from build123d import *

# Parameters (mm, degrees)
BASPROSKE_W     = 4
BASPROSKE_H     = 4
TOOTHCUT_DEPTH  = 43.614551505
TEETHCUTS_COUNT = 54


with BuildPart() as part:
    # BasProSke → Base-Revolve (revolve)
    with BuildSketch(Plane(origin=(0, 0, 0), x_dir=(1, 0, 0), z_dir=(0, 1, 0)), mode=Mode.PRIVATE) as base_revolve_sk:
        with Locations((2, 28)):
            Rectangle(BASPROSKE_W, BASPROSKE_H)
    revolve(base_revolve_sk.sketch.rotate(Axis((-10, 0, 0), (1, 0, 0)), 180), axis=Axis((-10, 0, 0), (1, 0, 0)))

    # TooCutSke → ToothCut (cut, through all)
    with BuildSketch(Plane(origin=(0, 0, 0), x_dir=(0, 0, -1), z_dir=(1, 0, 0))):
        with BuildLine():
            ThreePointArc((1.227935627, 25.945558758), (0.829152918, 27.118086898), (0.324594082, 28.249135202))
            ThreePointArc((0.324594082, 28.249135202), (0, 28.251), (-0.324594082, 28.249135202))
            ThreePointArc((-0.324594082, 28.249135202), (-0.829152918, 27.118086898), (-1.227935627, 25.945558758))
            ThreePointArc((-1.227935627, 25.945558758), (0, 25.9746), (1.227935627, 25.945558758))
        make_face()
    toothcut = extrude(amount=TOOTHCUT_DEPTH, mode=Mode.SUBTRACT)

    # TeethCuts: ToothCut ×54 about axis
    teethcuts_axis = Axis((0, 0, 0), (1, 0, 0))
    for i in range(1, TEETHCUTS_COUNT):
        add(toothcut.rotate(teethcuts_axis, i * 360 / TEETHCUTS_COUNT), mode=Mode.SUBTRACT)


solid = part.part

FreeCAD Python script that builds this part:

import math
import FreeCAD as App
import Part
import Sketcher
from FreeCAD import Vector

doc = App.newDocument("Part")
body = doc.addObject("PartDesign::Body", "Body")

sketch1 = body.newObject("Sketcher::SketchObject", "Sketch")
sketch1.AttachmentSupport = (doc.getObject("XZ_Plane"), [""])
sketch1.MapMode = "FlatFace"
sketch1.addGeometry([
    Part.LineSegment(Vector(0, -30, 0), Vector(0, -26, 0)),
    Part.LineSegment(Vector(0, -26, 0), Vector(4, -26, 0)),
    Part.LineSegment(Vector(4, -26, 0), Vector(4, -30, 0)),
    Part.LineSegment(Vector(4, -30, 0), Vector(0, -30, 0)),
], False)
sketch1.addConstraint([
    Sketcher.Constraint("Coincident", 0, 2, 1, 1),
    Sketcher.Constraint("Coincident", 1, 2, 2, 1),
    Sketcher.Constraint("Coincident", 2, 2, 3, 1),
    Sketcher.Constraint("Coincident", 3, 2, 0, 1),
    Sketcher.Constraint("Vertical", 0),
    Sketcher.Constraint("Horizontal", 1),
    Sketcher.Constraint("Vertical", 2),
    Sketcher.Constraint("Horizontal", 3),
    Sketcher.Constraint("PointOnObject", 0, 2, -2),
    Sketcher.Constraint("Equal", 3, 0),
    Sketcher.Constraint("DistanceX", 1, 1, 1, 2, 4.0),
    Sketcher.Constraint("DistanceY", 0, 2, -1, 1, 26.0),
])
revolution = body.newObject("PartDesign::Revolution", "Revolution")
revolution.Profile = sketch1
revolution.ReferenceAxis = (sketch1, ["H_Axis"])
revolution.Angle = 360

sketch2 = body.newObject("Sketcher::SketchObject", "Sketch001")
sketch2.AttachmentSupport = (doc.getObject("YZ_Plane"), [""])
sketch2.MapMode = "FlatFace"
sketch2.addGeometry([
    Part.ArcOfCircle(Part.Circle(Vector(22.2, 11.7, 0), Vector(0, 0, 1), 13.5), math.radians(-73.85), math.radians(-63.33)),
    Part.ArcOfCircle(Part.Circle(Vector(0, 0, 0), Vector(0, 0, 1), 28.3), math.radians(-0.66), math.radians(0.66)),
    Part.ArcOfCircle(Part.Circle(Vector(22.2, -11.7, 0), Vector(0, 0, 1), 13.5), math.radians(63.33), math.radians(73.85)),
    Part.ArcOfCircle(Part.Circle(Vector(0, 0, 0), Vector(0, 0, 1), 26), math.radians(-2.71), math.radians(2.71)),
], False)
sketch2.addConstraint([
    Sketcher.Constraint("Coincident", 0, 2, 1, 1),
    Sketcher.Constraint("Coincident", 1, 2, 2, 1),
    Sketcher.Constraint("Coincident", 2, 2, 3, 2),
    Sketcher.Constraint("Coincident", 3, 1, 0, 1),
    Sketcher.Constraint("Coincident", 1, 3, -1, 1),
    Sketcher.Constraint("Coincident", 3, 3, -1, 1),
    Sketcher.Constraint("Equal", 0, 2),
    Sketcher.Constraint("Symmetric", 0, 3, 2, 3, -1),
    Sketcher.Constraint("Radius", 0, 13.5),
    Sketcher.Constraint("Radius", 3, 25.9746),
    Sketcher.Constraint("Radius", 1, 28.250994),
    Sketcher.Constraint("DistanceX", -1, 1, 0, 3, 22.189508),
    Sketcher.Constraint("DistanceX", -1, 1, 2, 2, 25.945559),
])
pocket1 = body.newObject("PartDesign::Pocket", "Pocket")
pocket1.Profile = sketch2
pocket1.Type = "ThroughAll"
pocket1.Reversed = True
doc.recompute()

polarpattern = body.newObject("PartDesign::PolarPattern", "PolarPattern")
polarpattern.Originals = [pocket1]
polarpattern.Axis = (doc.getObject("X_Axis"), [""])
polarpattern.Angle = 360
polarpattern.Occurrences = 54
body.Tip = polarpattern

doc.recompute()
